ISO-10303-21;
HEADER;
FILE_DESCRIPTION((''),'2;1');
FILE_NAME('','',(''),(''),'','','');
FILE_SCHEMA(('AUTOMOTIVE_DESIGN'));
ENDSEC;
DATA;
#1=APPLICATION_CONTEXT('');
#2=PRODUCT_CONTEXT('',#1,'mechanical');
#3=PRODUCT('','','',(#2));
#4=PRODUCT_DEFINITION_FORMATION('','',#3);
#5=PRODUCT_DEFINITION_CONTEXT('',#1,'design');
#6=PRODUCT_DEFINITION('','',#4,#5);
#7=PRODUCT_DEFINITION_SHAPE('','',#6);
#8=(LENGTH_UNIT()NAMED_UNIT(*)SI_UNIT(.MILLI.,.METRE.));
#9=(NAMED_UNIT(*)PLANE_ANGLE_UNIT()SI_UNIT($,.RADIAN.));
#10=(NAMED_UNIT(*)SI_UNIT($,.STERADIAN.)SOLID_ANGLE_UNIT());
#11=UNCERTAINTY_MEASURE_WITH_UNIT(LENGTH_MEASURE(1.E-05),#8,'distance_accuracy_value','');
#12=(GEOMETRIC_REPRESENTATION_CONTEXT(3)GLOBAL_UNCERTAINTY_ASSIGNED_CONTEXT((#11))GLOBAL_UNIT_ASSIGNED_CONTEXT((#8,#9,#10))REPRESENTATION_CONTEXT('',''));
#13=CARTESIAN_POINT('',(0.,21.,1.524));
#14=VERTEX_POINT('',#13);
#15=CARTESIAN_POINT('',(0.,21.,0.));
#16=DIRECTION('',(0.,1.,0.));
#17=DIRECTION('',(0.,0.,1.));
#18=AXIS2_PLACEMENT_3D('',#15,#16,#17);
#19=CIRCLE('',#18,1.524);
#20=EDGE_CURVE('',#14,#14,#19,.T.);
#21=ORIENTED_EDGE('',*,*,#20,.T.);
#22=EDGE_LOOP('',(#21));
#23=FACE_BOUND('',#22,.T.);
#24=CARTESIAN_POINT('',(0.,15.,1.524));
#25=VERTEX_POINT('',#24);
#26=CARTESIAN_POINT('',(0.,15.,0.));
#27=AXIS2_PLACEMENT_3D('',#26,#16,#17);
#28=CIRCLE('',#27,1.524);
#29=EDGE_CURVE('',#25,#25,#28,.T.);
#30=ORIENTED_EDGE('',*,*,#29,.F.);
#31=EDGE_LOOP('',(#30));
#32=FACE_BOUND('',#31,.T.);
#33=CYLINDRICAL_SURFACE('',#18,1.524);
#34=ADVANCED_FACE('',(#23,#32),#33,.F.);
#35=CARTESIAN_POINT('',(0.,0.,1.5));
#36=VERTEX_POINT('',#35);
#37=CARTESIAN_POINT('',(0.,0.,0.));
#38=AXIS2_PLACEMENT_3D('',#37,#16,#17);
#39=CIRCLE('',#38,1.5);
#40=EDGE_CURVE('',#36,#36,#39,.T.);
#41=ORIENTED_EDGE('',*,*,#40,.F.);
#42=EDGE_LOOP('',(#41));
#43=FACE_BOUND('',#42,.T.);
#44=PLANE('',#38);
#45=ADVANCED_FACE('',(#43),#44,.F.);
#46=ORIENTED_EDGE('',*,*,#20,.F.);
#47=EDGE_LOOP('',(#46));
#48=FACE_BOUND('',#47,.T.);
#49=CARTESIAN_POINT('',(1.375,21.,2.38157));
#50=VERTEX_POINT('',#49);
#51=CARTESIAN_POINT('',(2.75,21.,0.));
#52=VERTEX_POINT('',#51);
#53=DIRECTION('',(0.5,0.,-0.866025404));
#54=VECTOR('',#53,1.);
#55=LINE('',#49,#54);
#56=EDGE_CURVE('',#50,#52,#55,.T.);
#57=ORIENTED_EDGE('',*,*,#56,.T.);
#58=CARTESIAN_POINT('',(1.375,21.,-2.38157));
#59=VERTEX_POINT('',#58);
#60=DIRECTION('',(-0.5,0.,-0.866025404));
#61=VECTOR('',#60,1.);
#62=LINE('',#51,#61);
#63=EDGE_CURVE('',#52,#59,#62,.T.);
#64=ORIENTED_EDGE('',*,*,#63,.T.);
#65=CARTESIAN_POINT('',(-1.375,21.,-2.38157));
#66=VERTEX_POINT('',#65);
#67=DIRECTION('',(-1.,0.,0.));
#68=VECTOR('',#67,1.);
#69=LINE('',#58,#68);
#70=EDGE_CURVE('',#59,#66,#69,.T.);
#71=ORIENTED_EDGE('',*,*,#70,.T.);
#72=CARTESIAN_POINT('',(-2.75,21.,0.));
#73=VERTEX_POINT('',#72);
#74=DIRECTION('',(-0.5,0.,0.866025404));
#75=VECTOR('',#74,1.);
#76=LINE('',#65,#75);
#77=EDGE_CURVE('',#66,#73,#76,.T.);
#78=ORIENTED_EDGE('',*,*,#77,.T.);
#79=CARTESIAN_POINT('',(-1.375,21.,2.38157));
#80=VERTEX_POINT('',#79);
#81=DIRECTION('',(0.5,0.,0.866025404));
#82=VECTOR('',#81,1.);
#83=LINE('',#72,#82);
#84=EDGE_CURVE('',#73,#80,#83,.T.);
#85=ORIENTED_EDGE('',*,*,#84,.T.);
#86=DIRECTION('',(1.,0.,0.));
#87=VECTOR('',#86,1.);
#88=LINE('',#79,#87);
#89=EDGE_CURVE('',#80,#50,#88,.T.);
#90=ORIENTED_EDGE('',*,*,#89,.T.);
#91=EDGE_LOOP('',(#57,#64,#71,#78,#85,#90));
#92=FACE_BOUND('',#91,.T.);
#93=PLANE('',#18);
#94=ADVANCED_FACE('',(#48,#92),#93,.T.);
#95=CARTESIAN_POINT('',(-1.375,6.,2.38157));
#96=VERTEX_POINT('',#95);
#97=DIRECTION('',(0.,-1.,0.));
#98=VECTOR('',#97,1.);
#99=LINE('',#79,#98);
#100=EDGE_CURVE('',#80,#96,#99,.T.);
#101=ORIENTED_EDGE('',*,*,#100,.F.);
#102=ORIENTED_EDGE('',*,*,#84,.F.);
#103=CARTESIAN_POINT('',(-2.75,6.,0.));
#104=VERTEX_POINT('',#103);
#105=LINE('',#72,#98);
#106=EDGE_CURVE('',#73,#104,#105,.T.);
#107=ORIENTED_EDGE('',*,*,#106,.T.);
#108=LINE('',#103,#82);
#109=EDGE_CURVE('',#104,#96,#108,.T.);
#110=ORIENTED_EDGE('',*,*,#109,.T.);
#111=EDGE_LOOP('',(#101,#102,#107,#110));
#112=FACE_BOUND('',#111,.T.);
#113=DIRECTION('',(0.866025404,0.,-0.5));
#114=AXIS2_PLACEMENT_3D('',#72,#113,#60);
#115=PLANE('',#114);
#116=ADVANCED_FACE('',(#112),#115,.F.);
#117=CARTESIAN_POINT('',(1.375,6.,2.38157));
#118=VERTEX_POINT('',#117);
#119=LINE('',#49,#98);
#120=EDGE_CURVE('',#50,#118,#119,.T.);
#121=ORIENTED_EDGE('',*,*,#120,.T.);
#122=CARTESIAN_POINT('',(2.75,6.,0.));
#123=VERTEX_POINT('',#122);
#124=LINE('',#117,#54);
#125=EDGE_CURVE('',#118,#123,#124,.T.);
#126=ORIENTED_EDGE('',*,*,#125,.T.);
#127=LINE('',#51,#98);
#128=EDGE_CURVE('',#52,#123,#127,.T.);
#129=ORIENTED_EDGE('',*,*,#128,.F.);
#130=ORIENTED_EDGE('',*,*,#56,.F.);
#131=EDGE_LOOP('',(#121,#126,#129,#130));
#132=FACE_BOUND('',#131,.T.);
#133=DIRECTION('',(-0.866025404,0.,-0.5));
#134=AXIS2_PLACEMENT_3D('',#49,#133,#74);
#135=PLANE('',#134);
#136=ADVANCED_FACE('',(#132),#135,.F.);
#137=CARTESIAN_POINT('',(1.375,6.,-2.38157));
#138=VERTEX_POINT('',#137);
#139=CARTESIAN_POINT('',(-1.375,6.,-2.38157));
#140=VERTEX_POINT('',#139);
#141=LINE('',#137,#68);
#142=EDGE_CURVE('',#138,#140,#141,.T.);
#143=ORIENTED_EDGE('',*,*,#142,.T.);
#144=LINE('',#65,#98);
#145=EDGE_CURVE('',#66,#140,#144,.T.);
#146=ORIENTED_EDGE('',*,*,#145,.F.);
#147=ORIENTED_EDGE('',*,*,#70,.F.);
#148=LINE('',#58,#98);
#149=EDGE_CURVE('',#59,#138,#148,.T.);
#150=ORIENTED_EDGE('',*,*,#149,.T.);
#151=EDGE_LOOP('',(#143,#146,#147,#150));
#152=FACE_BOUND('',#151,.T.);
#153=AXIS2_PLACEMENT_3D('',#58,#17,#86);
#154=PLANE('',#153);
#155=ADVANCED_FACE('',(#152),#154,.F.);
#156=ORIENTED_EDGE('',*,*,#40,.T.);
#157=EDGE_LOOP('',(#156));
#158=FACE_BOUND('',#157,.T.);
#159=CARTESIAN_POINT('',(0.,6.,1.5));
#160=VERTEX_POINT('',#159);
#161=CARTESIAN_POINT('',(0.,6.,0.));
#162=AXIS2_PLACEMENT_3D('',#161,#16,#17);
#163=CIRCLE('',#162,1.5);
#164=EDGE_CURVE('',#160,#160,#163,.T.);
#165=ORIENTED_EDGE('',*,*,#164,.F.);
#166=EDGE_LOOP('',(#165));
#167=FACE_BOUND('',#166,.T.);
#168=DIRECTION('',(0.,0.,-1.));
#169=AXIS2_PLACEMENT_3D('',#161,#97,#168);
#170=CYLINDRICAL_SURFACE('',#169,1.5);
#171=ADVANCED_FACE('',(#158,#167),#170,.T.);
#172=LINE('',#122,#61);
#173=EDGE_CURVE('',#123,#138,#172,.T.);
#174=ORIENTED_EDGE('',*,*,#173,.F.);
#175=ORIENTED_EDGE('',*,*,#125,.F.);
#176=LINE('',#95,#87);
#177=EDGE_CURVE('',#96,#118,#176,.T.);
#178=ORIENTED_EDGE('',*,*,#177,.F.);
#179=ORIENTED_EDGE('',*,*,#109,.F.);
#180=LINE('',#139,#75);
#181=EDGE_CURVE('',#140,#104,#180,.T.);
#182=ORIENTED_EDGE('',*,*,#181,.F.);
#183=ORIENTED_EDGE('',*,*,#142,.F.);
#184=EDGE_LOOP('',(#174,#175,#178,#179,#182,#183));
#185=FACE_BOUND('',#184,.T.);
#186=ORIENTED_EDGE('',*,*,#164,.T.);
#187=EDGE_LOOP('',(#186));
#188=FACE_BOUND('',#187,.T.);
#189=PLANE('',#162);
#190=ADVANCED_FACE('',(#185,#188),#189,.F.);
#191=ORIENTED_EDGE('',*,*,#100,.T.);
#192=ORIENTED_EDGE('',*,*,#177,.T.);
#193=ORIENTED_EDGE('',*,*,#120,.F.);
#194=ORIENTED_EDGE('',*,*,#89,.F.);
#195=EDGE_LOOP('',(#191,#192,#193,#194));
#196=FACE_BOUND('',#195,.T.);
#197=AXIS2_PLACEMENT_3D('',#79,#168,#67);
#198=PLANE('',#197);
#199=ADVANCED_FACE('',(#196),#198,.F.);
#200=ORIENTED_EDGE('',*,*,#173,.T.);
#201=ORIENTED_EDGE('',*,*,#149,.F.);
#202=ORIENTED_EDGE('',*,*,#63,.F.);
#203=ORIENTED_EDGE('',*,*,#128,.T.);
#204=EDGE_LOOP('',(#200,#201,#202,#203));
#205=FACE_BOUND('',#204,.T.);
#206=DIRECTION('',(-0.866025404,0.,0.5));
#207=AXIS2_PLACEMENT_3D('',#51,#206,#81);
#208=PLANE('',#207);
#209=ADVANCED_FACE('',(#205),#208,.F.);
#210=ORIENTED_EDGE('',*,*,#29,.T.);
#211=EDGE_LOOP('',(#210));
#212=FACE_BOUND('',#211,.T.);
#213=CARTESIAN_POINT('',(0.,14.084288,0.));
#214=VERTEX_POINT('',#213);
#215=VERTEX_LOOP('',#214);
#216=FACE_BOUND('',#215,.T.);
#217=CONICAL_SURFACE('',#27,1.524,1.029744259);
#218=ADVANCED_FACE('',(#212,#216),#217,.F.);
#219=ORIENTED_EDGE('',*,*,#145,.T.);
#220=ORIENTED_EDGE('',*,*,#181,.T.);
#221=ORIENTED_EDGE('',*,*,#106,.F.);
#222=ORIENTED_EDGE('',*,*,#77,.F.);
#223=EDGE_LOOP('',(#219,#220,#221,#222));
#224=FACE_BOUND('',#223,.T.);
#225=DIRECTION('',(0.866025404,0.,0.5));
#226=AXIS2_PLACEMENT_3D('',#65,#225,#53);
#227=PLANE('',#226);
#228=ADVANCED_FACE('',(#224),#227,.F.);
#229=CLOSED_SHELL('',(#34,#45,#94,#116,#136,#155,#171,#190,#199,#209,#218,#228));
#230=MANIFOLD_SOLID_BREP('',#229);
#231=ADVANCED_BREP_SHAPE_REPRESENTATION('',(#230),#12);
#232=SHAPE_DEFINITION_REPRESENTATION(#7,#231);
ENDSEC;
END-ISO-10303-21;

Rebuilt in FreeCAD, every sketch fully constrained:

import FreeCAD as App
import Part
import Sketcher

V = App.Vector
Q = App.Units.Quantity

doc = App.newDocument("Part")
body = doc.addObject("PartDesign::Body", "Body")

# Sketch on XZ plane
sketch1 = body.newObject("Sketcher::SketchObject", "Sketch")
sketch1.AttachmentSupport = (doc.getObject("XZ_Plane"), [""])
sketch1.MapMode = "FlatFace"
sketch1.addGeometry(Part.Circle(V(0, 0, 0), V(0, 0, 1), 1.5), False)
sketch1.addConstraint([
    Sketcher.Constraint("Coincident", 0, 3, -1, 1),
    Sketcher.Constraint("Diameter", 0, 3.0),
])
pad1 = body.newObject("PartDesign::Pad", "Pad")
pad1.Profile = sketch1
pad1.Length = 6
pad1.Reversed = True

# Sketch on XZ plane
sketch2 = body.newObject("Sketcher::SketchObject", "Sketch001")
sketch2.AttachmentSupport = (doc.getObject("XZ_Plane"), [""])
sketch2.MapMode = "FlatFace"
sketch2.AttachmentOffset = App.Placement(V(0, 0, -6), App.Rotation())
sketch2.addGeometry([
    Part.LineSegment(V(2.8, 0, 0), V(1.4, -2.4, 0)),  # 0
    Part.LineSegment(V(1.4, -2.4, 0), V(-1.4, -2.4, 0)),  # 1
    Part.LineSegment(V(-1.4, -2.4, 0), V(-2.8, 0, 0)),  # 2
    Part.LineSegment(V(-2.8, 0, 0), V(-1.4, 2.4, 0)),  # 3
    Part.LineSegment(V(-1.4, 2.4, 0), V(1.4, 2.4, 0)),  # 4
    Part.LineSegment(V(1.4, 2.4, 0), V(2.8, 0, 0)),  # 5
], False)
sketch2.addConstraint([
    Sketcher.Constraint("Coincident", 0, 2, 1, 1),
    Sketcher.Constraint("Coincident", 1, 2, 2, 1),
    Sketcher.Constraint("Coincident", 2, 2, 3, 1),
    Sketcher.Constraint("Coincident", 3, 2, 4, 1),
    Sketcher.Constraint("Coincident", 4, 2, 5, 1),
    Sketcher.Constraint("Coincident", 5, 2, 0, 1),
    Sketcher.Constraint("Horizontal", 1),
    Sketcher.Constraint("Horizontal", 4),
    Sketcher.Constraint("Symmetric", 0, 2, 3, 2, -1, 1),
    Sketcher.Constraint("Symmetric", 2, 2, 5, 2, -1, 1),
    Sketcher.Constraint("PointOnObject", 2, 2, -1),
    Sketcher.Constraint("Parallel", 2, 5),
    Sketcher.Constraint("Vertical", 1, 2, 3, 2),
    Sketcher.Constraint("Angle", 0, Q("-120 deg")),
    Sketcher.Constraint("DistanceX", 1, 2, 1, 1, 2.75),
    Sketcher.Constraint("DistanceX", 2, 2, 5, 2, 5.5),
])
pad2 = body.newObject("PartDesign::Pad", "Pad001")
pad2.Profile = sketch2
pad2.Length = 15
pad2.Reversed = True

# Sketch on XZ plane
sketch3 = body.newObject("Sketcher::SketchObject", "Sketch002")
sketch3.AttachmentSupport = (doc.getObject("XZ_Plane"), [""])
sketch3.MapMode = "FlatFace"
sketch3.AttachmentOffset = App.Placement(V(0, 0, -21), App.Rotation())
sketch3.addGeometry(Part.Circle(V(0, 0, 0), V(0, 0, 1), 1.5), False)
sketch3.addConstraint([
    Sketcher.Constraint("Coincident", 0, 3, -1, 1),
    Sketcher.Constraint("Diameter", 0, 3.048),
])
doc.recompute()
hole = body.newObject("PartDesign::Hole", "Hole")
hole.Profile = sketch3
hole.ThreadType = "None"
hole.Diameter = 3.048
hole.DepthType = "Dimension"
hole.Depth = 6
hole.DrillPoint = "Angled"
hole.DrillPointAngle = 118
hole.Reversed = True

doc.recompute()
